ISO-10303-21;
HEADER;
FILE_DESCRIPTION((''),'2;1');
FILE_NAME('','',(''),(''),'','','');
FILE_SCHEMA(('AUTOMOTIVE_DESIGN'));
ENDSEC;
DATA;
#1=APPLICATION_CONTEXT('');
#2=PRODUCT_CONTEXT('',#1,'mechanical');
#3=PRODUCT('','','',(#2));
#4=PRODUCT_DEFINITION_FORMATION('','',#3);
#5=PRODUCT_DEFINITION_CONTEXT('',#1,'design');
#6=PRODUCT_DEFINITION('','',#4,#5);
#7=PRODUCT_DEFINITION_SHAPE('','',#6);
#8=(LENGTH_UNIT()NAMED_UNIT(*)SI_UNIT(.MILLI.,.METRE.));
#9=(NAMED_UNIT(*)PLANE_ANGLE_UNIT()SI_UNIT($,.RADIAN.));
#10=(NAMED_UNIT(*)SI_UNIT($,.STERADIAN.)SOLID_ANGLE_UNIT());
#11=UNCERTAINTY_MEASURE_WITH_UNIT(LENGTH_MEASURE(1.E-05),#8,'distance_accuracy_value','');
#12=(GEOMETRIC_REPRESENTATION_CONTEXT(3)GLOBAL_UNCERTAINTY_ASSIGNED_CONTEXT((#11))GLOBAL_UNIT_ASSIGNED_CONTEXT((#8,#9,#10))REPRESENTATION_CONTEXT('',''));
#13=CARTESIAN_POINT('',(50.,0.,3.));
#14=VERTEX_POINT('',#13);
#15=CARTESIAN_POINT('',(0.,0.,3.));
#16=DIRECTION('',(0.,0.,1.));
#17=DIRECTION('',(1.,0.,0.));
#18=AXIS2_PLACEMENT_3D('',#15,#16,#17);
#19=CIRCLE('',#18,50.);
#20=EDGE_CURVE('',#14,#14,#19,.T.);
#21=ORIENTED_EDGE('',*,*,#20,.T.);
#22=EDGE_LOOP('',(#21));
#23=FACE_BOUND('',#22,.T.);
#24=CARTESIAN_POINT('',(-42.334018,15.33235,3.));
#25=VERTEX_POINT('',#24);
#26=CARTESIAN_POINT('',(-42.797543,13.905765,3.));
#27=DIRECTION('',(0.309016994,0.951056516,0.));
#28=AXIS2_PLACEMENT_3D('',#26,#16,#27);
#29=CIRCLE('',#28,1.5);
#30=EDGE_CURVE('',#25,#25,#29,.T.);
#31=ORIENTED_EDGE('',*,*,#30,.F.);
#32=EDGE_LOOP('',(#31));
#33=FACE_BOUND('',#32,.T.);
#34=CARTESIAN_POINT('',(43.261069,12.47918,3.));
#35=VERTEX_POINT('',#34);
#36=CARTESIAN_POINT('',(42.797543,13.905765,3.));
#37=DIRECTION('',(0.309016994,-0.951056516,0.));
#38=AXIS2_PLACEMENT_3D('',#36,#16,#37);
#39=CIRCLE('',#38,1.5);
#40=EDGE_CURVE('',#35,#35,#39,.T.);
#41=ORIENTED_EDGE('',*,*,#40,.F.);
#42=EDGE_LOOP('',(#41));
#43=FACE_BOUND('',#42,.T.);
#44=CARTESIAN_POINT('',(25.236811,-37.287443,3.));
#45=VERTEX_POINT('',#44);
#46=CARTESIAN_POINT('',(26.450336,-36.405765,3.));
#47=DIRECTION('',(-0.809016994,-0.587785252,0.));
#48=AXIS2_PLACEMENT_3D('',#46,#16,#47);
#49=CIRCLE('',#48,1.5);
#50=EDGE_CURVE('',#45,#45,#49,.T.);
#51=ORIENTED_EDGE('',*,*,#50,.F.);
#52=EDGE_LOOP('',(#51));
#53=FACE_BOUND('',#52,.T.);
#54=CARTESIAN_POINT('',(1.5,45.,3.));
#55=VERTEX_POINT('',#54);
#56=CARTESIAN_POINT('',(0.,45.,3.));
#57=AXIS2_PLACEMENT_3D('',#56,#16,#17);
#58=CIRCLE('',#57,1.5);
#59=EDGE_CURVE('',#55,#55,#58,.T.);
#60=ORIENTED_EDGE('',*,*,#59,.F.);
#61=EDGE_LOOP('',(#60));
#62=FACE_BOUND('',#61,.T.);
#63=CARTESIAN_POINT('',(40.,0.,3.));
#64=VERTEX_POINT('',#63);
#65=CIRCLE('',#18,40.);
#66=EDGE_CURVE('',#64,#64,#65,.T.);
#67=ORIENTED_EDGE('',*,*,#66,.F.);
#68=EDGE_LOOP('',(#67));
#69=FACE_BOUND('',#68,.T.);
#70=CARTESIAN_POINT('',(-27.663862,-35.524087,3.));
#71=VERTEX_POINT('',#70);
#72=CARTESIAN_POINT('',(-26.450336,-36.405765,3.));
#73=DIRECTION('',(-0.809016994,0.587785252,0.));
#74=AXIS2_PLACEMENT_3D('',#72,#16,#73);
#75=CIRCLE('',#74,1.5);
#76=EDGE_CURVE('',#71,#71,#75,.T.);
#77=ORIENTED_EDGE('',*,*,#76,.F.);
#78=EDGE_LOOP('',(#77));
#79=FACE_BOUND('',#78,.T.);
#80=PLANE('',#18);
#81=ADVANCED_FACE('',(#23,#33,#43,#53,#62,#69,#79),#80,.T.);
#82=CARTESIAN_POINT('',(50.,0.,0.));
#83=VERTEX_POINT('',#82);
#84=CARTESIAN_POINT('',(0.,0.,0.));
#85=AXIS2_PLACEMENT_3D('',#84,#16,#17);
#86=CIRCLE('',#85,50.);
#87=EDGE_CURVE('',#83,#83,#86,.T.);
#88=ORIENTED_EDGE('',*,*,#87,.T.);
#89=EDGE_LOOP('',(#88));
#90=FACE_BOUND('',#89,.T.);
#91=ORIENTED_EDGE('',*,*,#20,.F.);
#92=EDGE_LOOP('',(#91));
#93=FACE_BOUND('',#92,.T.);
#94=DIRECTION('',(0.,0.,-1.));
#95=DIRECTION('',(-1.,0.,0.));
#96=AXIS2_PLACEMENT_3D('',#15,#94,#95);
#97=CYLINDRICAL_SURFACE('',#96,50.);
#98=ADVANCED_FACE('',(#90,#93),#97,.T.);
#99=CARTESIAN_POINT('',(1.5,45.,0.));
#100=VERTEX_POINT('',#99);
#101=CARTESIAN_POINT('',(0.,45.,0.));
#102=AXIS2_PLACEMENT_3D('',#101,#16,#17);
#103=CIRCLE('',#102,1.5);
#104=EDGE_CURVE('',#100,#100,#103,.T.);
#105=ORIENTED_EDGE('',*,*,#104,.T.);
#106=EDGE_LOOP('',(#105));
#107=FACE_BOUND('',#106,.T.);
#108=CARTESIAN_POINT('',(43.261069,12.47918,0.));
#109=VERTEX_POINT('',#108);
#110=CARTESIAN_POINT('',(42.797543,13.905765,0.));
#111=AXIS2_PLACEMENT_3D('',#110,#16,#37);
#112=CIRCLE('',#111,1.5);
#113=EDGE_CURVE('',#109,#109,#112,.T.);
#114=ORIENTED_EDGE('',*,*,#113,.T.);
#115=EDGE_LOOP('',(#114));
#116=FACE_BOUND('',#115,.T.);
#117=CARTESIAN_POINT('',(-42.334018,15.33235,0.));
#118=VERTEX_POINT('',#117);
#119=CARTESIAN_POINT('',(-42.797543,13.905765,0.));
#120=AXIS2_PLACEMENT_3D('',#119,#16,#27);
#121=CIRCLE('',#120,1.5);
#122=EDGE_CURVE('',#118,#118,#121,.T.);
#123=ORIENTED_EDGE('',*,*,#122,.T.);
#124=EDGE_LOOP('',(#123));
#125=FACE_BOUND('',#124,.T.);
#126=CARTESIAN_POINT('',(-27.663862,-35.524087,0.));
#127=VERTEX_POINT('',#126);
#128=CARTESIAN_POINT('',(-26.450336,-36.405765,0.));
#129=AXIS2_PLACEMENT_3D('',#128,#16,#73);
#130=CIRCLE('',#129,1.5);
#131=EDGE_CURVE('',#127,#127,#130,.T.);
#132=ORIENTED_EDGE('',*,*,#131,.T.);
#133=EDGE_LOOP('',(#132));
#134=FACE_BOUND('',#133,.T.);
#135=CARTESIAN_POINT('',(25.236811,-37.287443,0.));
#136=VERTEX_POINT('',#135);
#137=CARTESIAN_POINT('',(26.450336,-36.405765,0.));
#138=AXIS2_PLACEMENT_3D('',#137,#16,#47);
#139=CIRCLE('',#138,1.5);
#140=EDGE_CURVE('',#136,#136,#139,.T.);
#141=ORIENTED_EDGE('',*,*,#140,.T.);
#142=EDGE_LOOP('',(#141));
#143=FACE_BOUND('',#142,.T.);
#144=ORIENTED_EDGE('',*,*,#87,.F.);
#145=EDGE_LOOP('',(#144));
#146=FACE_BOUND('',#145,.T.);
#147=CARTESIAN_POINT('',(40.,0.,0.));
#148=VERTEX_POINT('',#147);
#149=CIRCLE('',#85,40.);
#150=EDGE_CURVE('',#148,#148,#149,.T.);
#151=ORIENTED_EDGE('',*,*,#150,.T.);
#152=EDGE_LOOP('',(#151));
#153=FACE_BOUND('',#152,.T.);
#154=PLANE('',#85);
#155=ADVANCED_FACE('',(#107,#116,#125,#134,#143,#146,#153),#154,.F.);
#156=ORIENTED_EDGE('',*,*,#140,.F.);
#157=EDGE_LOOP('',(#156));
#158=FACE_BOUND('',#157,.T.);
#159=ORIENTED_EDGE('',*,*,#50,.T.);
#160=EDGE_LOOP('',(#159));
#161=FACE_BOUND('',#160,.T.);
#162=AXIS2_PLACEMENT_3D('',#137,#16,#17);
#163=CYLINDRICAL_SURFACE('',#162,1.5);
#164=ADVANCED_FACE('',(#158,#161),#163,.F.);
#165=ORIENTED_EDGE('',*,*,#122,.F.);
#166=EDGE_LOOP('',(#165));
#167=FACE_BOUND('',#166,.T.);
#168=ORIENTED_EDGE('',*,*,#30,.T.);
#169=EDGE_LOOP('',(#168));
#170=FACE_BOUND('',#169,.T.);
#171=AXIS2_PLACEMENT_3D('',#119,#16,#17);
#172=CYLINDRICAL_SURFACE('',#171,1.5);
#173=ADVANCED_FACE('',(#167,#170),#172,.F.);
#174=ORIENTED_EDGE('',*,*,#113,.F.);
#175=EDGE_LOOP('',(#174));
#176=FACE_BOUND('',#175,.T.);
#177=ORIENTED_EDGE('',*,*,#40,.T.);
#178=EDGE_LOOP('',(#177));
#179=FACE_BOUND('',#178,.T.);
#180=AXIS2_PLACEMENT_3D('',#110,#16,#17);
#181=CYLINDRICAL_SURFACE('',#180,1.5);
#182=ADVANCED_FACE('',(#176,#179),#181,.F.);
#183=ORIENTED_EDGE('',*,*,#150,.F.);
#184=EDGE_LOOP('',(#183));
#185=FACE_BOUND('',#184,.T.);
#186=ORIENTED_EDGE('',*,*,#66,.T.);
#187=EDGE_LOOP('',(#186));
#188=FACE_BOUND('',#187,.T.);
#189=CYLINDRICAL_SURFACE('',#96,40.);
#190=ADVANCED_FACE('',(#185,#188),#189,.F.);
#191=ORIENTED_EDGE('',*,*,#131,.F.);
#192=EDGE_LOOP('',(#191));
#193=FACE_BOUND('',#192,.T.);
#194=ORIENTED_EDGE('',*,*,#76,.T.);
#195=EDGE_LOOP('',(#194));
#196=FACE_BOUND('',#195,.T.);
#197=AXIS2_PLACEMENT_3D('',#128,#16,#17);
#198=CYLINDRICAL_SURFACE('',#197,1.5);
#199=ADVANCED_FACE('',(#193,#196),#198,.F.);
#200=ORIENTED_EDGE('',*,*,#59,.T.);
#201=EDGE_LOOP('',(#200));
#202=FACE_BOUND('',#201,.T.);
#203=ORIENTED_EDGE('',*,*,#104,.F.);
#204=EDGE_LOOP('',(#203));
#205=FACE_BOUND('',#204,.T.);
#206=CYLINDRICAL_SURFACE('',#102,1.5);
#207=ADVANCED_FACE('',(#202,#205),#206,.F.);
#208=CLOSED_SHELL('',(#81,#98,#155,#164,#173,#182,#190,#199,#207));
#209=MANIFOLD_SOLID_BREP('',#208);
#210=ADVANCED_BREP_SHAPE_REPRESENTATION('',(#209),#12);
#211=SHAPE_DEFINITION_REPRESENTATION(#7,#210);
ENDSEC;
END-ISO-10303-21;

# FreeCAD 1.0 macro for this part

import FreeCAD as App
import Part
import Sketcher
from FreeCAD import Vector

doc = App.newDocument("Part")
body = doc.addObject("PartDesign::Body", "Body")

# Sketch on XY plane
sketch1 = doc.addObject("Sketcher::SketchObject", "Sketch")
body.addObject(sketch1)
sketch1.AttachmentSupport = (doc.XY_Plane, [""])
sketch1.MapMode = "FlatFace"
sketch1.addGeometry(Part.Circle(Vector(0, 0, 0), Vector(0, 0, 1), 50), False)
sketch1.addGeometry(Part.Circle(Vector(0, 0, 0), Vector(0, 0, 1), 40), False)
sketch1.addConstraint(Sketcher.Constraint("Coincident", 0, 3, -1, 1))
sketch1.addConstraint(Sketcher.Constraint("Coincident", 1, 3, -1, 1))
sketch1.addConstraint(Sketcher.Constraint("Diameter", 0, 100.0))
sketch1.addConstraint(Sketcher.Constraint("Diameter", 1, 80.0))
pad1 = doc.addObject("PartDesign::Pad", "Pad")
body.addObject(pad1)
pad1.Profile = sketch1
pad1.Length = 3

# Sketch on XY plane
sketch2 = doc.addObject("Sketcher::SketchObject", "Sketch001")
body.addObject(sketch2)
sketch2.AttachmentSupport = (doc.XY_Plane, [""])
sketch2.MapMode = "FlatFace"
sketch2.AttachmentOffset = App.Placement(Vector(0, 0, 3), App.Rotation())
sketch2.addGeometry(Part.Circle(Vector(0, 45, 0), Vector(0, 0, 1), 1.5), False)
sketch2.addConstraint(Sketcher.Constraint("PointOnObject", 0, 3, -2))
sketch2.addConstraint(Sketcher.Constraint("Diameter", 0, 3.0))
sketch2.addConstraint(Sketcher.Constraint("DistanceY", -1, 1, 0, 3, 45.0))
pocket1 = doc.addObject("PartDesign::Pocket", "Pocket")
body.addObject(pocket1)
pocket1.Profile = sketch2
pocket1.Type = "ThroughAll"
doc.recompute()

polarpattern = doc.addObject("PartDesign::PolarPattern", "PolarPattern")
body.addObject(polarpattern)
polarpattern.Originals = [pocket1]
polarpattern.Axis = (doc.Z_Axis, [""])
polarpattern.Angle = 360
polarpattern.Occurrences = 5
body.Tip = polarpattern

doc.recompute()
